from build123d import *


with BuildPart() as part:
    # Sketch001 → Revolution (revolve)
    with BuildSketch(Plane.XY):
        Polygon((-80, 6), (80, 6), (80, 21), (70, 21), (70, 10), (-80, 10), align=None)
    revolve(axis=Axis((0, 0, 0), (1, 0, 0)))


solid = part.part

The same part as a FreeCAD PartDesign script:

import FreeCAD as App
import Part
import Sketcher
Q = App.Units.Quantity


def add_polygon(sketch, points):
    """Adds a closed chain of lines whose ends are joined by coincident constraints."""
    first, n = sketch.GeometryCount, len(points)
    for a, b in zip(points, points[1:] + points[:1]):
        sketch.addGeometry(Part.LineSegment(App.Vector(*a, 0), App.Vector(*b, 0)), False)
    for i in range(n):
        sketch.addConstraint(Sketcher.Constraint("Coincident", first + i, 2, first + (i + 1) % n, 1))

doc = App.newDocument("Part")
body = doc.addObject("PartDesign::Body", "Body")

sketch1 = body.newObject("Sketcher::SketchObject", "Sketch")
sketch1.AttachmentSupport = (doc.getObject("XY_Plane"), [""])
sketch1.MapMode = "FlatFace"
add_polygon(sketch1, [(-80, 6), (80, 6), (80, 21), (70, 21), (70, 10), (-80, 10)])
sketch1.addConstraint([
    Sketcher.Constraint("Horizontal", 0),
    Sketcher.Constraint("Vertical", 1),
    Sketcher.Constraint("Horizontal", 2),
    Sketcher.Constraint("Vertical", 3),
    Sketcher.Constraint("Horizontal", 4),
    Sketcher.Constraint("Vertical", 5),
    Sketcher.Constraint("DistanceX", 0, 1, 0, 2, Q("160 mm")),
    Sketcher.Constraint("DistanceX", 2, 2, 2, 1, Q("10 mm")),
    Sketcher.Constraint("DistanceY", 1, 1, 1, 2, Q("15 mm")),
    Sketcher.Constraint("DistanceY", 3, 2, 3, 1, Q("11 mm")),
    Sketcher.Constraint("DistanceX", -1, 1, 0, 2, Q("80 mm")),
    Sketcher.Constraint("DistanceY", -1, 1, 0, 2, Q("6 mm")),
])
revolution = body.newObject("PartDesign::Revolution", "Revolution")
revolution.Profile = sketch1
revolution.ReferenceAxis = (sketch1, ["H_Axis"])
revolution.Angle = 360

doc.recompute()
